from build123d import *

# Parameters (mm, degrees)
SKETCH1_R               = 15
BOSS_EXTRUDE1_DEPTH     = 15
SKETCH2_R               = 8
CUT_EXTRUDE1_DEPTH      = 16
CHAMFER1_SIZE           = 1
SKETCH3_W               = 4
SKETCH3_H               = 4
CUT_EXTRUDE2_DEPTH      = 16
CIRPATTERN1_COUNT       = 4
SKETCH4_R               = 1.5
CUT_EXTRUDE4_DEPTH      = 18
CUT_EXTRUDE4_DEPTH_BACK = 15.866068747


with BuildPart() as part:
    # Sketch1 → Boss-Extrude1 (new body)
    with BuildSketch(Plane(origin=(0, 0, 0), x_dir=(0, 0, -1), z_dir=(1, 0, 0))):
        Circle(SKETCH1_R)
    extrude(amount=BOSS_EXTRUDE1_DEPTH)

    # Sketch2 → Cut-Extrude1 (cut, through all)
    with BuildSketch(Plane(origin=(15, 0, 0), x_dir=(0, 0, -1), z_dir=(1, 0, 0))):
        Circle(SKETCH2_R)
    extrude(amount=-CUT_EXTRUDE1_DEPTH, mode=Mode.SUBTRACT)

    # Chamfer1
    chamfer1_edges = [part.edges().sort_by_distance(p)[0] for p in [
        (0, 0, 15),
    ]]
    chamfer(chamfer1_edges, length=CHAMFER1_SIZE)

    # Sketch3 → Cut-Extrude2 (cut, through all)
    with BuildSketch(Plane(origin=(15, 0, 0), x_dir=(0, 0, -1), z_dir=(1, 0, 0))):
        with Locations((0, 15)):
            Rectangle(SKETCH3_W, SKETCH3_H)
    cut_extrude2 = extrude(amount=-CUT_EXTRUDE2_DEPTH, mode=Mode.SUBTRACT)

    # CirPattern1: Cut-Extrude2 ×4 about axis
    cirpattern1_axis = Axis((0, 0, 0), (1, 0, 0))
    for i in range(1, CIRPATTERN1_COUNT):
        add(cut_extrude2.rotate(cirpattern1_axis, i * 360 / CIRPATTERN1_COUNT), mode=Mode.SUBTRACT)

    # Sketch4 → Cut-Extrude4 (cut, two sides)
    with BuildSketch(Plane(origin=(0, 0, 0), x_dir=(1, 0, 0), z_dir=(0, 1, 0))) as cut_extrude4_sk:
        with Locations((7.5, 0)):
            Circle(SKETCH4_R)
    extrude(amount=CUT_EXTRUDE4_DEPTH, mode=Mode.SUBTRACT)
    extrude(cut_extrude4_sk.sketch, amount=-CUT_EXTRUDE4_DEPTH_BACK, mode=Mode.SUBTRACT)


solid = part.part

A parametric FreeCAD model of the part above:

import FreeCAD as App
import Part
import Sketcher

V = App.Vector


def edges_at(feature, points):
    """Names of the edges that pass closest to the given points."""
    edges = feature.Shape.Edges
    near = lambda p: min(range(len(edges)), key=lambda i: edges[i].distToShape(Part.Vertex(*p))[0])
    return sorted({f"Edge{near(p) + 1}" for p in points})

doc = App.newDocument("Part")
body = doc.addObject("PartDesign::Body", "Body")

# Sketch on YZ plane
sketch1 = body.newObject("Sketcher::SketchObject", "Sketch")
sketch1.AttachmentSupport = (doc.getObject("YZ_Plane"), [""])
sketch1.MapMode = "FlatFace"
sketch1.addGeometry(Part.Circle(V(0, 0, 0), V(0, 0, 1), 15), False)
sketch1.addConstraint(Sketcher.Constraint("Coincident", 0, 3, -1, 1))
sketch1.addConstraint(Sketcher.Constraint("Diameter", 0, 30.0))
pad1 = body.newObject("PartDesign::Pad", "Pad")
pad1.Profile = sketch1
pad1.Length = 15

# Sketch on YZ plane
sketch2 = body.newObject("Sketcher::SketchObject", "Sketch001")
sketch2.AttachmentSupport = (doc.getObject("YZ_Plane"), [""])
sketch2.MapMode = "FlatFace"
sketch2.AttachmentOffset = App.Placement(V(0, 0, 15), App.Rotation())
sketch2.addGeometry(Part.Circle(V(0, 0, 0), V(0, 0, 1), 8), False)
sketch2.addConstraint(Sketcher.Constraint("Coincident", 0, 3, -1, 1))
sketch2.addConstraint(Sketcher.Constraint("Diameter", 0, 16.0))
pocket1 = body.newObject("PartDesign::Pocket", "Pocket")
pocket1.Profile = sketch2
pocket1.Type = "ThroughAll"
doc.recompute()

chamfer = body.newObject("PartDesign::Chamfer", "Chamfer")
chamfer.Base = (pocket1, edges_at(pocket1, [(0, 0, 15)]))
chamfer.Size = 1

# Sketch on YZ plane
sketch3 = body.newObject("Sketcher::SketchObject", "Sketch002")
sketch3.AttachmentSupport = (doc.getObject("YZ_Plane"), [""])
sketch3.MapMode = "FlatFace"
sketch3.AttachmentOffset = App.Placement(V(0, 0, 15), App.Rotation())
sketch3.addGeometry(Part.LineSegment(V(17, 2, 0), V(13, 2, 0)), False)
sketch3.addGeometry(Part.LineSegment(V(13, 2, 0), V(13, -2, 0)), False)
sketch3.addGeometry(Part.LineSegment(V(13, -2, 0), V(17, -2, 0)), False)
sketch3.addGeometry(Part.LineSegment(V(17, -2, 0), V(17, 2, 0)), False)
sketch3.addConstraint(Sketcher.Constraint("Coincident", 0, 2, 1, 1))
sketch3.addConstraint(Sketcher.Constraint("Coincident", 1, 2, 2, 1))
sketch3.addConstraint(Sketcher.Constraint("Coincident", 2, 2, 3, 1))
sketch3.addConstraint(Sketcher.Constraint("Coincident", 3, 2, 0, 1))
sketch3.addConstraint(Sketcher.Constraint("Horizontal", 0))
sketch3.addConstraint(Sketcher.Constraint("Vertical", 1))
sketch3.addConstraint(Sketcher.Constraint("Horizontal", 2))
sketch3.addConstraint(Sketcher.Constraint("Vertical", 3))
sketch3.addConstraint(Sketcher.Constraint("Equal", 2, 1))
sketch3.addConstraint(Sketcher.Constraint("DistanceX", 0, 2, 0, 1, 4.0))
sketch3.addConstraint(Sketcher.Constraint("DistanceX", -1, 1, 0, 2, 13.0))
sketch3.addConstraint(Sketcher.Constraint("DistanceY", -1, 1, 0, 2, 2.0))
pocket2 = body.newObject("PartDesign::Pocket", "Pocket001")
pocket2.Profile = sketch3
pocket2.Type = "ThroughAll"
doc.recompute()

polarpattern = body.newObject("PartDesign::PolarPattern", "PolarPattern")
polarpattern.Originals = [pocket2]
polarpattern.Axis = (doc.getObject("X_Axis"), [""])
polarpattern.Angle = 360
polarpattern.Occurrences = 4
body.Tip = polarpattern

# Sketch on XZ plane
sketch4 = body.newObject("Sketcher::SketchObject", "Sketch003")
sketch4.AttachmentSupport = (doc.getObject("XZ_Plane"), [""])
sketch4.MapMode = "FlatFace"
sketch4.addGeometry(Part.Circle(V(7.5, 0, 0), V(0, 0, 1), 1.5), False)
sketch4.addConstraint(Sketcher.Constraint("PointOnObject", 0, 3, -1))
sketch4.addConstraint(Sketcher.Constraint("Diameter", 0, 3.0))
sketch4.addConstraint(Sketcher.Constraint("DistanceX", -1, 1, 0, 3, 7.5))
pocket3 = body.newObject("PartDesign::Pocket", "Pocket002")
pocket3.Profile = sketch4
pocket3.Type = "ThroughAll"
pocket3.Midplane = True

doc.recompute()
